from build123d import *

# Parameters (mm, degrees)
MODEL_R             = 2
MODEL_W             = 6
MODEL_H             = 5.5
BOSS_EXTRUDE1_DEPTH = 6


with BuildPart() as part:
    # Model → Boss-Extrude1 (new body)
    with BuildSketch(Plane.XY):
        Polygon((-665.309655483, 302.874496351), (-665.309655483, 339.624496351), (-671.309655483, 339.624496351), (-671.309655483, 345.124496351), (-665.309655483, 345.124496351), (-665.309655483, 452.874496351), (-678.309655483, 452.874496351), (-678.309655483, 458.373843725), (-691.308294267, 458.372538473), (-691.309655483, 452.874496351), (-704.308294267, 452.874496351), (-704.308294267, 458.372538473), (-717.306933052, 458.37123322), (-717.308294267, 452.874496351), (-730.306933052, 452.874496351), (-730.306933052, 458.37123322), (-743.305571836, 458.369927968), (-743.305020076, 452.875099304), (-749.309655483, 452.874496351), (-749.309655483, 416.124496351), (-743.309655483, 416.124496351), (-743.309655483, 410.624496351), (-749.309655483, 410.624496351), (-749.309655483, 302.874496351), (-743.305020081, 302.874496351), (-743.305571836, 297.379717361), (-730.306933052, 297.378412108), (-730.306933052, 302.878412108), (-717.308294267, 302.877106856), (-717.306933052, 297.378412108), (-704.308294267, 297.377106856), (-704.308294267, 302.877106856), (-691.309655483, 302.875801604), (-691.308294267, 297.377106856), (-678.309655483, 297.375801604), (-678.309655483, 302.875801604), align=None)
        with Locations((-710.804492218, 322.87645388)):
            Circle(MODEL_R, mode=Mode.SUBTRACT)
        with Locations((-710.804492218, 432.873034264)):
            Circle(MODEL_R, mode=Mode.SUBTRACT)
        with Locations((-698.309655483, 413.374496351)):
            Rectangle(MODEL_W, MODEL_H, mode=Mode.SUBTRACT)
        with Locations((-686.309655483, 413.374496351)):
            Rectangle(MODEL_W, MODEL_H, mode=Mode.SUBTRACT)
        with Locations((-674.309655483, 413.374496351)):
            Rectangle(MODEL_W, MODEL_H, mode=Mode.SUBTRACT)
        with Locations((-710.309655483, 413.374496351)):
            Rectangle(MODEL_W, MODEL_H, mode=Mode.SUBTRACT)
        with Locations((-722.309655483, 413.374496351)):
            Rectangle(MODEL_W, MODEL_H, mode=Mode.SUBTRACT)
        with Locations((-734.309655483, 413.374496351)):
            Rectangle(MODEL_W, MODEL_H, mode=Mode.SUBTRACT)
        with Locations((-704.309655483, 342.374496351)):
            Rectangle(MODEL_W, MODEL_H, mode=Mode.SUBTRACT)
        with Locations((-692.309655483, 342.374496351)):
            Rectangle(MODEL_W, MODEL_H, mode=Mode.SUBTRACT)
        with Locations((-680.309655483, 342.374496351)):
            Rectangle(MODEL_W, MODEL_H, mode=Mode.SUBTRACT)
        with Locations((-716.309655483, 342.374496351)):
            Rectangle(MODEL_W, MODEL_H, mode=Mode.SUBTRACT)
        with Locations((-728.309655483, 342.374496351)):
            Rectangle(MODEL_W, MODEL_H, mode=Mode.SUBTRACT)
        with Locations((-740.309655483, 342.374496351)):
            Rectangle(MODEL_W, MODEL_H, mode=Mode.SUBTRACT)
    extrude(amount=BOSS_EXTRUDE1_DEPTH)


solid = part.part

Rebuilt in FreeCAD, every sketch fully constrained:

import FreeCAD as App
import Part
import Sketcher

V = App.Vector

doc = App.newDocument("Part")
body = doc.addObject("PartDesign::Body", "Body")

sketch1 = body.newObject("Sketcher::SketchObject", "Sketch")
sketch1.AttachmentSupport = (doc.getObject("XY_Plane"), [""])
sketch1.MapMode = "FlatFace"
sketch1.addGeometry(Part.LineSegment(V(-665.3, 302.9, 0), V(-665.3, 339.6, 0)), False)
sketch1.addGeometry(Part.LineSegment(V(-665.3, 339.6, 0), V(-671.3, 339.6, 0)), False)
sketch1.addGeometry(Part.LineSegment(V(-671.3, 339.6, 0), V(-671.3, 345.1, 0)), False)
sketch1.addGeometry(Part.LineSegment(V(-671.3, 345.1, 0), V(-665.3, 345.1, 0)), False)
sketch1.addGeometry(Part.LineSegment(V(-665.3, 345.1, 0), V(-665.3, 452.9, 0)), False)
sketch1.addGeometry(Part.LineSegment(V(-665.3, 452.9, 0), V(-678.3, 452.9, 0)), False)
sketch1.addGeometry(Part.LineSegment(V(-678.3, 452.9, 0), V(-678.3, 458.4, 0)), False)
sketch1.addGeometry(Part.LineSegment(V(-678.3, 458.4, 0), V(-691.3, 458.4, 0)), False)
sketch1.addGeometry(Part.LineSegment(V(-691.3, 458.4, 0), V(-691.3, 452.9, 0)), False)
sketch1.addGeometry(Part.LineSegment(V(-691.3, 452.9, 0), V(-704.3, 452.9, 0)), False)
sketch1.addGeometry(Part.LineSegment(V(-704.3, 452.9, 0), V(-704.3, 458.4, 0)), False)
sketch1.addGeometry(Part.LineSegment(V(-704.3, 458.4, 0), V(-717.3, 458.4, 0)), False)
sketch1.addGeometry(Part.LineSegment(V(-717.3, 458.4, 0), V(-717.3, 452.9, 0)), False)
sketch1.addGeometry(Part.LineSegment(V(-717.3, 452.9, 0), V(-730.3, 452.9, 0)), False)
sketch1.addGeometry(Part.LineSegment(V(-730.3, 452.9, 0), V(-730.3, 458.4, 0)), False)
sketch1.addGeometry(Part.LineSegment(V(-730.3, 458.4, 0), V(-743.3, 458.4, 0)), False)
sketch1.addGeometry(Part.LineSegment(V(-743.3, 458.4, 0), V(-743.3, 452.9, 0)), False)
sketch1.addGeometry(Part.LineSegment(V(-743.3, 452.9, 0), V(-749.3, 452.9, 0)), False)
sketch1.addGeometry(Part.LineSegment(V(-749.3, 452.9, 0), V(-749.3, 416.1, 0)), False)
sketch1.addGeometry(Part.LineSegment(V(-749.3, 416.1, 0), V(-743.3, 416.1, 0)), False)
sketch1.addGeometry(Part.LineSegment(V(-743.3, 416.1, 0), V(-743.3, 410.6, 0)), False)
sketch1.addGeometry(Part.LineSegment(V(-743.3, 410.6, 0), V(-749.3, 410.6, 0)), False)
sketch1.addGeometry(Part.LineSegment(V(-749.3, 410.6, 0), V(-749.3, 302.9, 0)), False)
sketch1.addGeometry(Part.LineSegment(V(-749.3, 302.9, 0), V(-743.3, 302.9, 0)), False)
sketch1.addGeometry(Part.LineSegment(V(-743.3, 302.9, 0), V(-743.3, 297.4, 0)), False)
sketch1.addGeometry(Part.LineSegment(V(-743.3, 297.4, 0), V(-730.3, 297.4, 0)), False)
sketch1.addGeometry(Part.LineSegment(V(-730.3, 297.4, 0), V(-730.3, 302.9, 0)), False)
sketch1.addGeometry(Part.LineSegment(V(-730.3, 302.9, 0), V(-717.3, 302.9, 0)), False)
sketch1.addGeometry(Part.LineSegment(V(-717.3, 302.9, 0), V(-717.3, 297.4, 0)), False)
sketch1.addGeometry(Part.LineSegment(V(-717.3, 297.4, 0), V(-704.3, 297.4, 0)), False)
sketch1.addGeometry(Part.LineSegment(V(-704.3, 297.4, 0), V(-704.3, 302.9, 0)), False)
sketch1.addGeometry(Part.LineSegment(V(-704.3, 302.9, 0), V(-691.3, 302.9, 0)), False)
sketch1.addGeometry(Part.LineSegment(V(-691.3, 302.9, 0), V(-691.3, 297.4, 0)), False)
sketch1.addGeometry(Part.LineSegment(V(-691.3, 297.4, 0), V(-678.3, 297.4, 0)), False)
sketch1.addGeometry(Part.LineSegment(V(-678.3, 297.4, 0), V(-678.3, 302.9, 0)), False)
sketch1.addGeometry(Part.LineSegment(V(-678.3, 302.9, 0), V(-665.3, 302.9, 0)), False)
sketch1.addGeometry(Part.LineSegment(V(-737.3, 339.6, 0), V(-743.3, 339.6, 0)), False)
sketch1.addGeometry(Part.LineSegment(V(-743.3, 339.6, 0), V(-743.3, 345.1, 0)), False)
sketch1.addGeometry(Part.LineSegment(V(-743.3, 345.1, 0), V(-737.3, 345.1, 0)), False)
sketch1.addGeometry(Part.LineSegment(V(-737.3, 345.1, 0), V(-737.3, 339.6, 0)), False)
sketch1.addGeometry(Part.LineSegment(V(-725.3, 339.6, 0), V(-731.3, 339.6, 0)), False)
sketch1.addGeometry(Part.LineSegment(V(-731.3, 339.6, 0), V(-731.3, 345.1, 0)), False)
sketch1.addGeometry(Part.LineSegment(V(-731.3, 345.1, 0), V(-725.3, 345.1, 0)), False)
sketch1.addGeometry(Part.LineSegment(V(-725.3, 345.1, 0), V(-725.3, 339.6, 0)), False)
sketch1.addGeometry(Part.Circle(V(-710.8, 322.9, 0), V(0, 0, 1), 2), False)
sketch1.addGeometry(Part.LineSegment(V(-713.3, 339.6, 0), V(-719.3, 339.6, 0)), False)
sketch1.addGeometry(Part.LineSegment(V(-719.3, 339.6, 0), V(-719.3, 345.1, 0)), False)
sketch1.addGeometry(Part.LineSegment(V(-719.3, 345.1, 0), V(-713.3, 345.1, 0)), False)
sketch1.addGeometry(Part.LineSegment(V(-713.3, 345.1, 0), V(-713.3, 339.6, 0)), False)
sketch1.addGeometry(Part.LineSegment(V(-701.3, 339.6, 0), V(-707.3, 339.6, 0)), False)
sketch1.addGeometry(Part.LineSegment(V(-707.3, 339.6, 0), V(-707.3, 345.1, 0)), False)
sketch1.addGeometry(Part.LineSegment(V(-707.3, 345.1, 0), V(-701.3, 345.1, 0)), False)
sketch1.addGeometry(Part.LineSegment(V(-701.3, 345.1, 0), V(-701.3, 339.6, 0)), False)
sketch1.addGeometry(Part.LineSegment(V(-689.3, 339.6, 0), V(-695.3, 339.6, 0)), False)
sketch1.addGeometry(Part.LineSegment(V(-695.3, 339.6, 0), V(-695.3, 345.1, 0)), False)
sketch1.addGeometry(Part.LineSegment(V(-695.3, 345.1, 0), V(-689.3, 345.1, 0)), False)
sketch1.addGeometry(Part.LineSegment(V(-689.3, 345.1, 0), V(-689.3, 339.6, 0)), False)
sketch1.addGeometry(Part.LineSegment(V(-677.3, 339.6, 0), V(-683.3, 339.6, 0)), False)
sketch1.addGeometry(Part.LineSegment(V(-683.3, 339.6, 0), V(-683.3, 345.1, 0)), False)
sketch1.addGeometry(Part.LineSegment(V(-683.3, 345.1, 0), V(-677.3, 345.1, 0)), False)
sketch1.addGeometry(Part.LineSegment(V(-677.3, 345.1, 0), V(-677.3, 339.6, 0)), False)
sketch1.addGeometry(Part.LineSegment(V(-731.3, 410.6, 0), V(-737.3, 410.6, 0)), False)
sketch1.addGeometry(Part.LineSegment(V(-737.3, 410.6, 0), V(-737.3, 416.1, 0)), False)
sketch1.addGeometry(Part.LineSegment(V(-737.3, 416.1, 0), V(-731.3, 416.1, 0)), False)
sketch1.addGeometry(Part.LineSegment(V(-731.3, 416.1, 0), V(-731.3, 410.6, 0)), False)
sketch1.addGeometry(Part.LineSegment(V(-719.3, 410.6, 0), V(-725.3, 410.6, 0)), False)
sketch1.addGeometry(Part.LineSegment(V(-725.3, 410.6, 0), V(-725.3, 416.1, 0)), False)
sketch1.addGeometry(Part.LineSegment(V(-725.3, 416.1, 0), V(-719.3, 416.1, 0)), False)
sketch1.addGeometry(Part.LineSegment(V(-719.3, 416.1, 0), V(-719.3, 410.6, 0)), False)
sketch1.addGeometry(Part.LineSegment(V(-707.3, 410.6, 0), V(-713.3, 410.6, 0)), False)
sketch1.addGeometry(Part.LineSegment(V(-713.3, 410.6, 0), V(-713.3, 416.1, 0)), False)
sketch1.addGeometry(Part.LineSegment(V(-713.3, 416.1, 0), V(-707.3, 416.1, 0)), False)
sketch1.addGeometry(Part.LineSegment(V(-707.3, 416.1, 0), V(-707.3, 410.6, 0)), False)
sketch1.addGeometry(Part.Circle(V(-710.8, 432.9, 0), V(0, 0, 1), 2), False)
sketch1.addGeometry(Part.LineSegment(V(-695.3, 410.6, 0), V(-701.3, 410.6, 0)), False)
sketch1.addGeometry(Part.LineSegment(V(-701.3, 410.6, 0), V(-701.3, 416.1, 0)), False)
sketch1.addGeometry(Part.LineSegment(V(-701.3, 416.1, 0), V(-695.3, 416.1, 0)), False)
sketch1.addGeometry(Part.LineSegment(V(-695.3, 416.1, 0), V(-695.3, 410.6, 0)), False)
sketch1.addGeometry(Part.LineSegment(V(-683.3, 410.6, 0), V(-689.3, 410.6, 0)), False)
sketch1.addGeometry(Part.LineSegment(V(-689.3, 410.6, 0), V(-689.3, 416.1, 0)), False)
sketch1.addGeometry(Part.LineSegment(V(-689.3, 416.1, 0), V(-683.3, 416.1, 0)), False)
sketch1.addGeometry(Part.LineSegment(V(-683.3, 416.1, 0), V(-683.3, 410.6, 0)), False)
sketch1.addGeometry(Part.LineSegment(V(-671.3, 410.6, 0), V(-677.3, 410.6, 0)), False)
sketch1.addGeometry(Part.LineSegment(V(-677.3, 410.6, 0), V(-677.3, 416.1, 0)), False)
sketch1.addGeometry(Part.LineSegment(V(-677.3, 416.1, 0), V(-671.3, 416.1, 0)), False)
sketch1.addGeometry(Part.LineSegment(V(-671.3, 416.1, 0), V(-671.3, 410.6, 0)), False)
sketch1.addConstraint(Sketcher.Constraint("Coincident", 0, 2, 1, 1))
sketch1.addConstraint(Sketcher.Constraint("Coincident", 1, 2, 2, 1))
sketch1.addConstraint(Sketcher.Constraint("Coincident", 2, 2, 3, 1))
sketch1.addConstraint(Sketcher.Constraint("Coincident", 3, 2, 4, 1))
sketch1.addConstraint(Sketcher.Constraint("Coincident", 4, 2, 5, 1))
sketch1.addConstraint(Sketcher.Constraint("Coincident", 5, 2, 6, 1))
sketch1.addConstraint(Sketcher.Constraint("Coincident", 6, 2, 7, 1))
sketch1.addConstraint(Sketcher.Constraint("Coincident", 7, 2, 8, 1))
sketch1.addConstraint(Sketcher.Constraint("Coincident", 8, 2, 9, 1))
sketch1.addConstraint(Sketcher.Constraint("Coincident", 9, 2, 10, 1))
sketch1.addConstraint(Sketcher.Constraint("Coincident", 10, 2, 11, 1))
sketch1.addConstraint(Sketcher.Constraint("Coincident", 11, 2, 12, 1))
sketch1.addConstraint(Sketcher.Constraint("Coincident", 12, 2, 13, 1))
sketch1.addConstraint(Sketcher.Constraint("Coincident", 13, 2, 14, 1))
sketch1.addConstraint(Sketcher.Constraint("Coincident", 14, 2, 15, 1))
sketch1.addConstraint(Sketcher.Constraint("Coincident", 15, 2, 16, 1))
sketch1.addConstraint(Sketcher.Constraint("Coincident", 16, 2, 17, 1))
sketch1.addConstraint(Sketcher.Constraint("Coincident", 17, 2, 18, 1))
sketch1.addConstraint(Sketcher.Constraint("Coincident", 18, 2, 19, 1))
sketch1.addConstraint(Sketcher.Constraint("Coincident", 19, 2, 20, 1))
sketch1.addConstraint(Sketcher.Constraint("Coincident", 20, 2, 21, 1))
sketch1.addConstraint(Sketcher.Constraint("Coincident", 21, 2, 22, 1))
sketch1.addConstraint(Sketcher.Constraint("Coincident", 22, 2, 23, 1))
sketch1.addConstraint(Sketcher.Constraint("Coincident", 23, 2, 24, 1))
sketch1.addConstraint(Sketcher.Constraint("Coincident", 24, 2, 25, 1))
sketch1.addConstraint(Sketcher.Constraint("Coincident", 25, 2, 26, 1))
sketch1.addConstraint(Sketcher.Constraint("Coincident", 26, 2, 27, 1))
sketch1.addConstraint(Sketcher.Constraint("Coincident", 27, 2, 28, 1))
sketch1.addConstraint(Sketcher.Constraint("Coincident", 28, 2, 29, 1))
sketch1.addConstraint(Sketcher.Constraint("Coincident", 29, 2, 30, 1))
sketch1.addConstraint(Sketcher.Constraint("Coincident", 30, 2, 31, 1))
sketch1.addConstraint(Sketcher.Constraint("Coincident", 31, 2, 32, 1))
sketch1.addConstraint(Sketcher.Constraint("Coincident", 32, 2, 33, 1))
sketch1.addConstraint(Sketcher.Constraint("Coincident", 33, 2, 34, 1))
sketch1.addConstraint(Sketcher.Constraint("Coincident", 34, 2, 35, 1))
sketch1.addConstraint(Sketcher.Constraint("Coincident", 35, 2, 0, 1))
sketch1.addConstraint(Sketcher.Constraint("Coincident", 36, 2, 37, 1))
sketch1.addConstraint(Sketcher.Constraint("Coincident", 37, 2, 38, 1))
sketch1.addConstraint(Sketcher.Constraint("Coincident", 38, 2, 39, 1))
sketch1.addConstraint(Sketcher.Constraint("Coincident", 39, 2, 36, 1))
sketch1.addConstraint(Sketcher.Constraint("Coincident", 40, 2, 41, 1))
sketch1.addConstraint(Sketcher.Constraint("Coincident", 41, 2, 42, 1))
sketch1.addConstraint(Sketcher.Constraint("Coincident", 42, 2, 43, 1))
sketch1.addConstraint(Sketcher.Constraint("Coincident", 43, 2, 40, 1))
sketch1.addConstraint(Sketcher.Constraint("Coincident", 45, 2, 46, 1))
sketch1.addConstraint(Sketcher.Constraint("Coincident", 46, 2, 47, 1))
sketch1.addConstraint(Sketcher.Constraint("Coincident", 47, 2, 48, 1))
sketch1.addConstraint(Sketcher.Constraint("Coincident", 48, 2, 45, 1))
sketch1.addConstraint(Sketcher.Constraint("Coincident", 49, 2, 50, 1))
sketch1.addConstraint(Sketcher.Constraint("Coincident", 50, 2, 51, 1))
sketch1.addConstraint(Sketcher.Constraint("Coincident", 51, 2, 52, 1))
sketch1.addConstraint(Sketcher.Constraint("Coincident", 52, 2, 49, 1))
sketch1.addConstraint(Sketcher.Constraint("Coincident", 53, 2, 54, 1))
sketch1.addConstraint(Sketcher.Constraint("Coincident", 54, 2, 55, 1))
sketch1.addConstraint(Sketcher.Constraint("Coincident", 55, 2, 56, 1))
sketch1.addConstraint(Sketcher.Constraint("Coincident", 56, 2, 53, 1))
sketch1.addConstraint(Sketcher.Constraint("Coincident", 57, 2, 58, 1))
sketch1.addConstraint(Sketcher.Constraint("Coincident", 58, 2, 59, 1))
sketch1.addConstraint(Sketcher.Constraint("Coincident", 59, 2, 60, 1))
sketch1.addConstraint(Sketcher.Constraint("Coincident", 60, 2, 57, 1))
sketch1.addConstraint(Sketcher.Constraint("Coincident", 61, 2, 62, 1))
sketch1.addConstraint(Sketcher.Constraint("Coincident", 62, 2, 63, 1))
sketch1.addConstraint(Sketcher.Constraint("Coincident", 63, 2, 64, 1))
sketch1.addConstraint(Sketcher.Constraint("Coincident", 64, 2, 61, 1))
sketch1.addConstraint(Sketcher.Constraint("Coincident", 65, 2, 66, 1))
sketch1.addConstraint(Sketcher.Constraint("Coincident", 66, 2, 67, 1))
sketch1.addConstraint(Sketcher.Constraint("Coincident", 67, 2, 68, 1))
sketch1.addConstraint(Sketcher.Constraint("Coincident", 68, 2, 65, 1))
sketch1.addConstraint(Sketcher.Constraint("Coincident", 69, 2, 70, 1))
sketch1.addConstraint(Sketcher.Constraint("Coincident", 70, 2, 71, 1))
sketch1.addConstraint(Sketcher.Constraint("Coincident", 71, 2, 72, 1))
sketch1.addConstraint(Sketcher.Constraint("Coincident", 72, 2, 69, 1))
sketch1.addConstraint(Sketcher.Constraint("Coincident", 74, 2, 75, 1))
sketch1.addConstraint(Sketcher.Constraint("Coincident", 75, 2, 76, 1))
sketch1.addConstraint(Sketcher.Constraint("Coincident", 76, 2, 77, 1))
sketch1.addConstraint(Sketcher.Constraint("Coincident", 77, 2, 74, 1))
sketch1.addConstraint(Sketcher.Constraint("Coincident", 78, 2, 79, 1))
sketch1.addConstraint(Sketcher.Constraint("Coincident", 79, 2, 80, 1))
sketch1.addConstraint(Sketcher.Constraint("Coincident", 80, 2, 81, 1))
sketch1.addConstraint(Sketcher.Constraint("Coincident", 81, 2, 78, 1))
sketch1.addConstraint(Sketcher.Constraint("Coincident", 82, 2, 83, 1))
sketch1.addConstraint(Sketcher.Constraint("Coincident", 83, 2, 84, 1))
sketch1.addConstraint(Sketcher.Constraint("Coincident", 84, 2, 85, 1))
sketch1.addConstraint(Sketcher.Constraint("Coincident", 85, 2, 82, 1))
sketch1.addConstraint(Sketcher.Constraint("Vertical", 0))
sketch1.addConstraint(Sketcher.Constraint("Horizontal", 1))
sketch1.addConstraint(Sketcher.Constraint("Vertical", 2))
sketch1.addConstraint(Sketcher.Constraint("Horizontal", 3))
sketch1.addConstraint(Sketcher.Constraint("Vertical", 4))
sketch1.addConstraint(Sketcher.Constraint("Horizontal", 5))
sketch1.addConstraint(Sketcher.Constraint("Vertical", 6))
sketch1.addConstraint(Sketcher.Constraint("Horizontal", 9))
sketch1.addConstraint(Sketcher.Constraint("Vertical", 10))
sketch1.addConstraint(Sketcher.Constraint("Horizontal", 13))
sketch1.addConstraint(Sketcher.Constraint("Vertical", 14))
sketch1.addConstraint(Sketcher.Constraint("Vertical", 18))
sketch1.addConstraint(Sketcher.Constraint("Horizontal", 19))
sketch1.addConstraint(Sketcher.Constraint("Vertical", 20))
sketch1.addConstraint(Sketcher.Constraint("Horizontal", 21))
sketch1.addConstraint(Sketcher.Constraint("Vertical", 22))
sketch1.addConstraint(Sketcher.Constraint("Horizontal", 23))
sketch1.addConstraint(Sketcher.Constraint("Vertical", 26))
sketch1.addConstraint(Sketcher.Constraint("Vertical", 30))
sketch1.addConstraint(Sketcher.Constraint("Vertical", 34))
sketch1.addConstraint(Sketcher.Constraint("Horizontal", 36))
sketch1.addConstraint(Sketcher.Constraint("Vertical", 37))
sketch1.addConstraint(Sketcher.Constraint("Horizontal", 38))
sketch1.addConstraint(Sketcher.Constraint("Vertical", 39))
sketch1.addConstraint(Sketcher.Constraint("Horizontal", 40))
sketch1.addConstraint(Sketcher.Constraint("Vertical", 41))
sketch1.addConstraint(Sketcher.Constraint("Horizontal", 42))
sketch1.addConstraint(Sketcher.Constraint("Vertical", 43))
sketch1.addConstraint(Sketcher.Constraint("Horizontal", 45))
sketch1.addConstraint(Sketcher.Constraint("Vertical", 46))
sketch1.addConstraint(Sketcher.Constraint("Horizontal", 47))
sketch1.addConstraint(Sketcher.Constraint("Vertical", 48))
sketch1.addConstraint(Sketcher.Constraint("Horizontal", 49))
sketch1.addConstraint(Sketcher.Constraint("Vertical", 50))
sketch1.addConstraint(Sketcher.Constraint("Horizontal", 51))
sketch1.addConstraint(Sketcher.Constraint("Vertical", 52))
sketch1.addConstraint(Sketcher.Constraint("Horizontal", 53))
sketch1.addConstraint(Sketcher.Constraint("Vertical", 54))
sketch1.addConstraint(Sketcher.Constraint("Horizontal", 55))
sketch1.addConstraint(Sketcher.Constraint("Vertical", 56))
sketch1.addConstraint(Sketcher.Constraint("Horizontal", 57))
sketch1.addConstraint(Sketcher.Constraint("Vertical", 58))
sketch1.addConstraint(Sketcher.Constraint("Horizontal", 59))
sketch1.addConstraint(Sketcher.Constraint("Vertical", 60))
sketch1.addConstraint(Sketcher.Constraint("Horizontal", 61))
sketch1.addConstraint(Sketcher.Constraint("Vertical", 62))
sketch1.addConstraint(Sketcher.Constraint("Horizontal", 63))
sketch1.addConstraint(Sketcher.Constraint("Vertical", 64))
sketch1.addConstraint(Sketcher.Constraint("Horizontal", 65))
sketch1.addConstraint(Sketcher.Constraint("Vertical", 66))
sketch1.addConstraint(Sketcher.Constraint("Horizontal", 67))
sketch1.addConstraint(Sketcher.Constraint("Vertical", 68))
sketch1.addConstraint(Sketcher.Constraint("Horizontal", 69))
sketch1.addConstraint(Sketcher.Constraint("Vertical", 70))
sketch1.addConstraint(Sketcher.Constraint("Horizontal", 71))
sketch1.addConstraint(Sketcher.Constraint("Vertical", 72))
sketch1.addConstraint(Sketcher.Constraint("Horizontal", 74))
sketch1.addConstraint(Sketcher.Constraint("Vertical", 75))
sketch1.addConstraint(Sketcher.Constraint("Horizontal", 76))
sketch1.addConstraint(Sketcher.Constraint("Vertical", 77))
sketch1.addConstraint(Sketcher.Constraint("Horizontal", 78))
sketch1.addConstraint(Sketcher.Constraint("Vertical", 79))
sketch1.addConstraint(Sketcher.Constraint("Horizontal", 80))
sketch1.addConstraint(Sketcher.Constraint("Vertical", 81))
sketch1.addConstraint(Sketcher.Constraint("Horizontal", 82))
sketch1.addConstraint(Sketcher.Constraint("Vertical", 83))
sketch1.addConstraint(Sketcher.Constraint("Horizontal", 84))
sketch1.addConstraint(Sketcher.Constraint("Vertical", 85))
sketch1.addConstraint(Sketcher.Constraint("Equal", 44, 73))
sketch1.addConstraint(Sketcher.Constraint("Parallel", 7, 11))
sketch1.addConstraint(Sketcher.Constraint("Parallel", 8, 12))
sketch1.addConstraint(Sketcher.Constraint("Parallel", 11, 15))
sketch1.addConstraint(Sketcher.Constraint("Perpendicular", 15, 16))
sketch1.addConstraint(Sketcher.Constraint("Perpendicular", 16, 17))
sketch1.addConstraint(Sketcher.Constraint("Perpendicular", 24, 25))
sketch1.addConstraint(Sketcher.Constraint("Parallel", 25, 27))
sketch1.addConstraint(Sketcher.Constraint("Parallel", 27, 29))
sketch1.addConstraint(Sketcher.Constraint("Parallel", 29, 31))
sketch1.addConstraint(Sketcher.Constraint("Parallel", 28, 32))
sketch1.addConstraint(Sketcher.Constraint("Parallel", 31, 33))
sketch1.addConstraint(Sketcher.Constraint("Parallel", 33, 35))
sketch1.addConstraint(Sketcher.Constraint("Horizontal", 5, 2, 8, 2))
sketch1.addConstraint(Sketcher.Constraint("Horizontal", 7, 2, 10, 2))
sketch1.addConstraint(Sketcher.Constraint("Horizontal", 9, 2, 12, 2))
sketch1.addConstraint(Sketcher.Constraint("Horizontal", 11, 2, 14, 2))
sketch1.addConstraint(Sketcher.Constraint("Horizontal", 13, 2, 17, 2))
sketch1.addConstraint(Sketcher.Constraint("Horizontal", 25, 2, 28, 2))
sketch1.addConstraint(Sketcher.Constraint("Horizontal", 27, 2, 30, 2))
sketch1.addConstraint(Sketcher.Constraint("Horizontal", 29, 2, 32, 2))
sketch1.addConstraint(Sketcher.Constraint("Horizontal", 31, 2, 34, 2))
sketch1.addConstraint(Sketcher.Constraint("Horizontal", 23, 2, 35, 2))
sketch1.addConstraint(Sketcher.Constraint("Horizontal", 1, 2, 36, 2))
sketch1.addConstraint(Sketcher.Constraint("Horizontal", 3, 2, 37, 2))
sketch1.addConstraint(Sketcher.Constraint("Horizontal", 39, 2, 40, 2))
sketch1.addConstraint(Sketcher.Constraint("Horizontal", 38, 2, 41, 2))
sketch1.addConstraint(Sketcher.Constraint("Horizontal", 43, 2, 45, 2))
sketch1.addConstraint(Sketcher.Constraint("Horizontal", 42, 2, 46, 2))
sketch1.addConstraint(Sketcher.Constraint("Horizontal", 48, 2, 49, 2))
sketch1.addConstraint(Sketcher.Constraint("Horizontal", 47, 2, 50, 2))
sketch1.addConstraint(Sketcher.Constraint("Horizontal", 52, 2, 53, 2))
sketch1.addConstraint(Sketcher.Constraint("Horizontal", 51, 2, 54, 2))
sketch1.addConstraint(Sketcher.Constraint("Horizontal", 56, 2, 57, 2))
sketch1.addConstraint(Sketcher.Constraint("Horizontal", 55, 2, 58, 2))
sketch1.addConstraint(Sketcher.Constraint("Horizontal", 21, 2, 61, 2))
sketch1.addConstraint(Sketcher.Constraint("Horizontal", 19, 2, 62, 2))
sketch1.addConstraint(Sketcher.Constraint("Horizontal", 64, 2, 65, 2))
sketch1.addConstraint(Sketcher.Constraint("Horizontal", 63, 2, 66, 2))
sketch1.addConstraint(Sketcher.Constraint("Horizontal", 68, 2, 69, 2))
sketch1.addConstraint(Sketcher.Constraint("Horizontal", 67, 2, 70, 2))
sketch1.addConstraint(Sketcher.Constraint("Horizontal", 72, 2, 74, 2))
sketch1.addConstraint(Sketcher.Constraint("Horizontal", 71, 2, 75, 2))
sketch1.addConstraint(Sketcher.Constraint("Horizontal", 77, 2, 78, 2))
sketch1.addConstraint(Sketcher.Constraint("Horizontal", 76, 2, 79, 2))
sketch1.addConstraint(Sketcher.Constraint("Horizontal", 81, 2, 82, 2))
sketch1.addConstraint(Sketcher.Constraint("Horizontal", 80, 2, 83, 2))
sketch1.addConstraint(Sketcher.Constraint("Vertical", 44, 3, 73, 3))
sketch1.addConstraint(Sketcher.Constraint("Vertical", 0, 2, 3, 2))
sketch1.addConstraint(Sketcher.Constraint("Vertical", 18, 2, 21, 2))
sketch1.addConstraint(Sketcher.Constraint("Vertical", 16, 2, 23, 2))
sketch1.addConstraint(Sketcher.Constraint("Vertical", 15, 2, 24, 2))
sketch1.addConstraint(Sketcher.Constraint("Vertical", 14, 2, 25, 2))
sketch1.addConstraint(Sketcher.Constraint("Vertical", 12, 2, 27, 2))
sketch1.addConstraint(Sketcher.Constraint("Vertical", 11, 2, 28, 2))
sketch1.addConstraint(Sketcher.Constraint("Vertical", 10, 2, 29, 2))
sketch1.addConstraint(Sketcher.Constraint("Vertical", 8, 2, 31, 2))
sketch1.addConstraint(Sketcher.Constraint("Vertical", 6, 2, 33, 2))
sketch1.addConstraint(Sketcher.Constraint("Vertical", 20, 2, 36, 2))
sketch1.addConstraint(Sketcher.Constraint("Vertical", 39, 2, 61, 2))
sketch1.addConstraint(Sketcher.Constraint("Vertical", 41, 2, 63, 2))
sketch1.addConstraint(Sketcher.Constraint("Vertical", 43, 2, 65, 2))
sketch1.addConstraint(Sketcher.Constraint("Vertical", 46, 2, 67, 2))
sketch1.addConstraint(Sketcher.Constraint("Vertical", 48, 2, 69, 2))
sketch1.addConstraint(Sketcher.Constraint("Vertical", 50, 2, 71, 2))
sketch1.addConstraint(Sketcher.Constraint("Vertical", 52, 2, 74, 2))
sketch1.addConstraint(Sketcher.Constraint("Vertical", 54, 2, 76, 2))
sketch1.addConstraint(Sketcher.Constraint("Vertical", 56, 2, 78, 2))
sketch1.addConstraint(Sketcher.Constraint("Vertical", 58, 2, 80, 2))
sketch1.addConstraint(Sketcher.Constraint("Vertical", 60, 2, 82, 2))
sketch1.addConstraint(Sketcher.Constraint("Vertical", 2, 2, 84, 2))
sketch1.addConstraint(Sketcher.Constraint("Equal", 9, 13))
sketch1.addConstraint(Sketcher.Constraint("Equal", 3, 19))
sketch1.addConstraint(Sketcher.Constraint("Equal", 21, 36))
sketch1.addConstraint(Sketcher.Constraint("Equal", 38, 40))
sketch1.addConstraint(Sketcher.Constraint("Equal", 42, 45))
sketch1.addConstraint(Sketcher.Constraint("Equal", 47, 49))
sketch1.addConstraint(Sketcher.Constraint("Equal", 51, 53))
sketch1.addConstraint(Sketcher.Constraint("Equal", 55, 57))
sketch1.addConstraint(Sketcher.Constraint("Equal", 59, 61))
sketch1.addConstraint(Sketcher.Constraint("Equal", 63, 65))
sketch1.addConstraint(Sketcher.Constraint("Equal", 67, 69))
sketch1.addConstraint(Sketcher.Constraint("Equal", 71, 74))
sketch1.addConstraint(Sketcher.Constraint("Equal", 76, 78))
sketch1.addConstraint(Sketcher.Constraint("Equal", 80, 82))
sketch1.addConstraint(Sketcher.Constraint("Equal", 0, 18))
sketch1.addConstraint(Sketcher.Constraint("Equal", 2, 20))
sketch1.addConstraint(Sketcher.Constraint("Equal", 20, 26))
sketch1.addConstraint(Sketcher.Constraint("Equal", 7, 11))
sketch1.addConstraint(Sketcher.Constraint("Equal", 11, 15))
sketch1.addConstraint(Sketcher.Constraint("Equal", 25, 27))
sketch1.addConstraint(Sketcher.Constraint("Diameter", 44, 4.0))
sketch1.addConstraint(Sketcher.Constraint("DistanceX", 1, 2, 1, 1, 6.0))
sketch1.addConstraint(Sketcher.Constraint("DistanceX", 5, 2, 5, 1, 13.0))
sketch1.addConstraint(Sketcher.Constraint("DistanceY", 2, 1, 2, 2, 5.5))
sketch1.addConstraint(Sketcher.Constraint("DistanceY", 0, 1, 0, 2, 36.75))
sketch1.addConstraint(Sketcher.Constraint("DistanceY", 4, 1, 4, 2, 107.75))
sketch1.addConstraint(Sketcher.Constraint("DistanceX", 9, 2, 9, 1, 12.998639))
sketch1.addConstraint(Sketcher.Constraint("DistanceY", -1, 1, 16, 2, 452.875099))
sketch1.addConstraint(Sketcher.Constraint("DistanceY", -1, 1, 31, 2, 302.875802))
sketch1.addConstraint(Sketcher.Constraint("Distance", 16, 5.494829))
sketch1.addConstraint(Sketcher.Constraint("DistanceX", 23, 1, 23, 2, 6.004635))
sketch1.addConstraint(Sketcher.Constraint("DistanceX", 15, 2, -1, 1, 743.305572))
sketch1.addConstraint(Sketcher.Constraint("DistanceX", 44, 3, -1, 1, 710.804492))
sketch1.addConstraint(Sketcher.Constraint("DistanceY", -1, 1, 44, 3, 322.876454))
sketch1.addConstraint(Sketcher.Constraint("DistanceY", -1, 1, 73, 3, 432.873034))
pad1 = body.newObject("PartDesign::Pad", "Pad")
pad1.Profile = sketch1
pad1.Length = 6

doc.recompute()
